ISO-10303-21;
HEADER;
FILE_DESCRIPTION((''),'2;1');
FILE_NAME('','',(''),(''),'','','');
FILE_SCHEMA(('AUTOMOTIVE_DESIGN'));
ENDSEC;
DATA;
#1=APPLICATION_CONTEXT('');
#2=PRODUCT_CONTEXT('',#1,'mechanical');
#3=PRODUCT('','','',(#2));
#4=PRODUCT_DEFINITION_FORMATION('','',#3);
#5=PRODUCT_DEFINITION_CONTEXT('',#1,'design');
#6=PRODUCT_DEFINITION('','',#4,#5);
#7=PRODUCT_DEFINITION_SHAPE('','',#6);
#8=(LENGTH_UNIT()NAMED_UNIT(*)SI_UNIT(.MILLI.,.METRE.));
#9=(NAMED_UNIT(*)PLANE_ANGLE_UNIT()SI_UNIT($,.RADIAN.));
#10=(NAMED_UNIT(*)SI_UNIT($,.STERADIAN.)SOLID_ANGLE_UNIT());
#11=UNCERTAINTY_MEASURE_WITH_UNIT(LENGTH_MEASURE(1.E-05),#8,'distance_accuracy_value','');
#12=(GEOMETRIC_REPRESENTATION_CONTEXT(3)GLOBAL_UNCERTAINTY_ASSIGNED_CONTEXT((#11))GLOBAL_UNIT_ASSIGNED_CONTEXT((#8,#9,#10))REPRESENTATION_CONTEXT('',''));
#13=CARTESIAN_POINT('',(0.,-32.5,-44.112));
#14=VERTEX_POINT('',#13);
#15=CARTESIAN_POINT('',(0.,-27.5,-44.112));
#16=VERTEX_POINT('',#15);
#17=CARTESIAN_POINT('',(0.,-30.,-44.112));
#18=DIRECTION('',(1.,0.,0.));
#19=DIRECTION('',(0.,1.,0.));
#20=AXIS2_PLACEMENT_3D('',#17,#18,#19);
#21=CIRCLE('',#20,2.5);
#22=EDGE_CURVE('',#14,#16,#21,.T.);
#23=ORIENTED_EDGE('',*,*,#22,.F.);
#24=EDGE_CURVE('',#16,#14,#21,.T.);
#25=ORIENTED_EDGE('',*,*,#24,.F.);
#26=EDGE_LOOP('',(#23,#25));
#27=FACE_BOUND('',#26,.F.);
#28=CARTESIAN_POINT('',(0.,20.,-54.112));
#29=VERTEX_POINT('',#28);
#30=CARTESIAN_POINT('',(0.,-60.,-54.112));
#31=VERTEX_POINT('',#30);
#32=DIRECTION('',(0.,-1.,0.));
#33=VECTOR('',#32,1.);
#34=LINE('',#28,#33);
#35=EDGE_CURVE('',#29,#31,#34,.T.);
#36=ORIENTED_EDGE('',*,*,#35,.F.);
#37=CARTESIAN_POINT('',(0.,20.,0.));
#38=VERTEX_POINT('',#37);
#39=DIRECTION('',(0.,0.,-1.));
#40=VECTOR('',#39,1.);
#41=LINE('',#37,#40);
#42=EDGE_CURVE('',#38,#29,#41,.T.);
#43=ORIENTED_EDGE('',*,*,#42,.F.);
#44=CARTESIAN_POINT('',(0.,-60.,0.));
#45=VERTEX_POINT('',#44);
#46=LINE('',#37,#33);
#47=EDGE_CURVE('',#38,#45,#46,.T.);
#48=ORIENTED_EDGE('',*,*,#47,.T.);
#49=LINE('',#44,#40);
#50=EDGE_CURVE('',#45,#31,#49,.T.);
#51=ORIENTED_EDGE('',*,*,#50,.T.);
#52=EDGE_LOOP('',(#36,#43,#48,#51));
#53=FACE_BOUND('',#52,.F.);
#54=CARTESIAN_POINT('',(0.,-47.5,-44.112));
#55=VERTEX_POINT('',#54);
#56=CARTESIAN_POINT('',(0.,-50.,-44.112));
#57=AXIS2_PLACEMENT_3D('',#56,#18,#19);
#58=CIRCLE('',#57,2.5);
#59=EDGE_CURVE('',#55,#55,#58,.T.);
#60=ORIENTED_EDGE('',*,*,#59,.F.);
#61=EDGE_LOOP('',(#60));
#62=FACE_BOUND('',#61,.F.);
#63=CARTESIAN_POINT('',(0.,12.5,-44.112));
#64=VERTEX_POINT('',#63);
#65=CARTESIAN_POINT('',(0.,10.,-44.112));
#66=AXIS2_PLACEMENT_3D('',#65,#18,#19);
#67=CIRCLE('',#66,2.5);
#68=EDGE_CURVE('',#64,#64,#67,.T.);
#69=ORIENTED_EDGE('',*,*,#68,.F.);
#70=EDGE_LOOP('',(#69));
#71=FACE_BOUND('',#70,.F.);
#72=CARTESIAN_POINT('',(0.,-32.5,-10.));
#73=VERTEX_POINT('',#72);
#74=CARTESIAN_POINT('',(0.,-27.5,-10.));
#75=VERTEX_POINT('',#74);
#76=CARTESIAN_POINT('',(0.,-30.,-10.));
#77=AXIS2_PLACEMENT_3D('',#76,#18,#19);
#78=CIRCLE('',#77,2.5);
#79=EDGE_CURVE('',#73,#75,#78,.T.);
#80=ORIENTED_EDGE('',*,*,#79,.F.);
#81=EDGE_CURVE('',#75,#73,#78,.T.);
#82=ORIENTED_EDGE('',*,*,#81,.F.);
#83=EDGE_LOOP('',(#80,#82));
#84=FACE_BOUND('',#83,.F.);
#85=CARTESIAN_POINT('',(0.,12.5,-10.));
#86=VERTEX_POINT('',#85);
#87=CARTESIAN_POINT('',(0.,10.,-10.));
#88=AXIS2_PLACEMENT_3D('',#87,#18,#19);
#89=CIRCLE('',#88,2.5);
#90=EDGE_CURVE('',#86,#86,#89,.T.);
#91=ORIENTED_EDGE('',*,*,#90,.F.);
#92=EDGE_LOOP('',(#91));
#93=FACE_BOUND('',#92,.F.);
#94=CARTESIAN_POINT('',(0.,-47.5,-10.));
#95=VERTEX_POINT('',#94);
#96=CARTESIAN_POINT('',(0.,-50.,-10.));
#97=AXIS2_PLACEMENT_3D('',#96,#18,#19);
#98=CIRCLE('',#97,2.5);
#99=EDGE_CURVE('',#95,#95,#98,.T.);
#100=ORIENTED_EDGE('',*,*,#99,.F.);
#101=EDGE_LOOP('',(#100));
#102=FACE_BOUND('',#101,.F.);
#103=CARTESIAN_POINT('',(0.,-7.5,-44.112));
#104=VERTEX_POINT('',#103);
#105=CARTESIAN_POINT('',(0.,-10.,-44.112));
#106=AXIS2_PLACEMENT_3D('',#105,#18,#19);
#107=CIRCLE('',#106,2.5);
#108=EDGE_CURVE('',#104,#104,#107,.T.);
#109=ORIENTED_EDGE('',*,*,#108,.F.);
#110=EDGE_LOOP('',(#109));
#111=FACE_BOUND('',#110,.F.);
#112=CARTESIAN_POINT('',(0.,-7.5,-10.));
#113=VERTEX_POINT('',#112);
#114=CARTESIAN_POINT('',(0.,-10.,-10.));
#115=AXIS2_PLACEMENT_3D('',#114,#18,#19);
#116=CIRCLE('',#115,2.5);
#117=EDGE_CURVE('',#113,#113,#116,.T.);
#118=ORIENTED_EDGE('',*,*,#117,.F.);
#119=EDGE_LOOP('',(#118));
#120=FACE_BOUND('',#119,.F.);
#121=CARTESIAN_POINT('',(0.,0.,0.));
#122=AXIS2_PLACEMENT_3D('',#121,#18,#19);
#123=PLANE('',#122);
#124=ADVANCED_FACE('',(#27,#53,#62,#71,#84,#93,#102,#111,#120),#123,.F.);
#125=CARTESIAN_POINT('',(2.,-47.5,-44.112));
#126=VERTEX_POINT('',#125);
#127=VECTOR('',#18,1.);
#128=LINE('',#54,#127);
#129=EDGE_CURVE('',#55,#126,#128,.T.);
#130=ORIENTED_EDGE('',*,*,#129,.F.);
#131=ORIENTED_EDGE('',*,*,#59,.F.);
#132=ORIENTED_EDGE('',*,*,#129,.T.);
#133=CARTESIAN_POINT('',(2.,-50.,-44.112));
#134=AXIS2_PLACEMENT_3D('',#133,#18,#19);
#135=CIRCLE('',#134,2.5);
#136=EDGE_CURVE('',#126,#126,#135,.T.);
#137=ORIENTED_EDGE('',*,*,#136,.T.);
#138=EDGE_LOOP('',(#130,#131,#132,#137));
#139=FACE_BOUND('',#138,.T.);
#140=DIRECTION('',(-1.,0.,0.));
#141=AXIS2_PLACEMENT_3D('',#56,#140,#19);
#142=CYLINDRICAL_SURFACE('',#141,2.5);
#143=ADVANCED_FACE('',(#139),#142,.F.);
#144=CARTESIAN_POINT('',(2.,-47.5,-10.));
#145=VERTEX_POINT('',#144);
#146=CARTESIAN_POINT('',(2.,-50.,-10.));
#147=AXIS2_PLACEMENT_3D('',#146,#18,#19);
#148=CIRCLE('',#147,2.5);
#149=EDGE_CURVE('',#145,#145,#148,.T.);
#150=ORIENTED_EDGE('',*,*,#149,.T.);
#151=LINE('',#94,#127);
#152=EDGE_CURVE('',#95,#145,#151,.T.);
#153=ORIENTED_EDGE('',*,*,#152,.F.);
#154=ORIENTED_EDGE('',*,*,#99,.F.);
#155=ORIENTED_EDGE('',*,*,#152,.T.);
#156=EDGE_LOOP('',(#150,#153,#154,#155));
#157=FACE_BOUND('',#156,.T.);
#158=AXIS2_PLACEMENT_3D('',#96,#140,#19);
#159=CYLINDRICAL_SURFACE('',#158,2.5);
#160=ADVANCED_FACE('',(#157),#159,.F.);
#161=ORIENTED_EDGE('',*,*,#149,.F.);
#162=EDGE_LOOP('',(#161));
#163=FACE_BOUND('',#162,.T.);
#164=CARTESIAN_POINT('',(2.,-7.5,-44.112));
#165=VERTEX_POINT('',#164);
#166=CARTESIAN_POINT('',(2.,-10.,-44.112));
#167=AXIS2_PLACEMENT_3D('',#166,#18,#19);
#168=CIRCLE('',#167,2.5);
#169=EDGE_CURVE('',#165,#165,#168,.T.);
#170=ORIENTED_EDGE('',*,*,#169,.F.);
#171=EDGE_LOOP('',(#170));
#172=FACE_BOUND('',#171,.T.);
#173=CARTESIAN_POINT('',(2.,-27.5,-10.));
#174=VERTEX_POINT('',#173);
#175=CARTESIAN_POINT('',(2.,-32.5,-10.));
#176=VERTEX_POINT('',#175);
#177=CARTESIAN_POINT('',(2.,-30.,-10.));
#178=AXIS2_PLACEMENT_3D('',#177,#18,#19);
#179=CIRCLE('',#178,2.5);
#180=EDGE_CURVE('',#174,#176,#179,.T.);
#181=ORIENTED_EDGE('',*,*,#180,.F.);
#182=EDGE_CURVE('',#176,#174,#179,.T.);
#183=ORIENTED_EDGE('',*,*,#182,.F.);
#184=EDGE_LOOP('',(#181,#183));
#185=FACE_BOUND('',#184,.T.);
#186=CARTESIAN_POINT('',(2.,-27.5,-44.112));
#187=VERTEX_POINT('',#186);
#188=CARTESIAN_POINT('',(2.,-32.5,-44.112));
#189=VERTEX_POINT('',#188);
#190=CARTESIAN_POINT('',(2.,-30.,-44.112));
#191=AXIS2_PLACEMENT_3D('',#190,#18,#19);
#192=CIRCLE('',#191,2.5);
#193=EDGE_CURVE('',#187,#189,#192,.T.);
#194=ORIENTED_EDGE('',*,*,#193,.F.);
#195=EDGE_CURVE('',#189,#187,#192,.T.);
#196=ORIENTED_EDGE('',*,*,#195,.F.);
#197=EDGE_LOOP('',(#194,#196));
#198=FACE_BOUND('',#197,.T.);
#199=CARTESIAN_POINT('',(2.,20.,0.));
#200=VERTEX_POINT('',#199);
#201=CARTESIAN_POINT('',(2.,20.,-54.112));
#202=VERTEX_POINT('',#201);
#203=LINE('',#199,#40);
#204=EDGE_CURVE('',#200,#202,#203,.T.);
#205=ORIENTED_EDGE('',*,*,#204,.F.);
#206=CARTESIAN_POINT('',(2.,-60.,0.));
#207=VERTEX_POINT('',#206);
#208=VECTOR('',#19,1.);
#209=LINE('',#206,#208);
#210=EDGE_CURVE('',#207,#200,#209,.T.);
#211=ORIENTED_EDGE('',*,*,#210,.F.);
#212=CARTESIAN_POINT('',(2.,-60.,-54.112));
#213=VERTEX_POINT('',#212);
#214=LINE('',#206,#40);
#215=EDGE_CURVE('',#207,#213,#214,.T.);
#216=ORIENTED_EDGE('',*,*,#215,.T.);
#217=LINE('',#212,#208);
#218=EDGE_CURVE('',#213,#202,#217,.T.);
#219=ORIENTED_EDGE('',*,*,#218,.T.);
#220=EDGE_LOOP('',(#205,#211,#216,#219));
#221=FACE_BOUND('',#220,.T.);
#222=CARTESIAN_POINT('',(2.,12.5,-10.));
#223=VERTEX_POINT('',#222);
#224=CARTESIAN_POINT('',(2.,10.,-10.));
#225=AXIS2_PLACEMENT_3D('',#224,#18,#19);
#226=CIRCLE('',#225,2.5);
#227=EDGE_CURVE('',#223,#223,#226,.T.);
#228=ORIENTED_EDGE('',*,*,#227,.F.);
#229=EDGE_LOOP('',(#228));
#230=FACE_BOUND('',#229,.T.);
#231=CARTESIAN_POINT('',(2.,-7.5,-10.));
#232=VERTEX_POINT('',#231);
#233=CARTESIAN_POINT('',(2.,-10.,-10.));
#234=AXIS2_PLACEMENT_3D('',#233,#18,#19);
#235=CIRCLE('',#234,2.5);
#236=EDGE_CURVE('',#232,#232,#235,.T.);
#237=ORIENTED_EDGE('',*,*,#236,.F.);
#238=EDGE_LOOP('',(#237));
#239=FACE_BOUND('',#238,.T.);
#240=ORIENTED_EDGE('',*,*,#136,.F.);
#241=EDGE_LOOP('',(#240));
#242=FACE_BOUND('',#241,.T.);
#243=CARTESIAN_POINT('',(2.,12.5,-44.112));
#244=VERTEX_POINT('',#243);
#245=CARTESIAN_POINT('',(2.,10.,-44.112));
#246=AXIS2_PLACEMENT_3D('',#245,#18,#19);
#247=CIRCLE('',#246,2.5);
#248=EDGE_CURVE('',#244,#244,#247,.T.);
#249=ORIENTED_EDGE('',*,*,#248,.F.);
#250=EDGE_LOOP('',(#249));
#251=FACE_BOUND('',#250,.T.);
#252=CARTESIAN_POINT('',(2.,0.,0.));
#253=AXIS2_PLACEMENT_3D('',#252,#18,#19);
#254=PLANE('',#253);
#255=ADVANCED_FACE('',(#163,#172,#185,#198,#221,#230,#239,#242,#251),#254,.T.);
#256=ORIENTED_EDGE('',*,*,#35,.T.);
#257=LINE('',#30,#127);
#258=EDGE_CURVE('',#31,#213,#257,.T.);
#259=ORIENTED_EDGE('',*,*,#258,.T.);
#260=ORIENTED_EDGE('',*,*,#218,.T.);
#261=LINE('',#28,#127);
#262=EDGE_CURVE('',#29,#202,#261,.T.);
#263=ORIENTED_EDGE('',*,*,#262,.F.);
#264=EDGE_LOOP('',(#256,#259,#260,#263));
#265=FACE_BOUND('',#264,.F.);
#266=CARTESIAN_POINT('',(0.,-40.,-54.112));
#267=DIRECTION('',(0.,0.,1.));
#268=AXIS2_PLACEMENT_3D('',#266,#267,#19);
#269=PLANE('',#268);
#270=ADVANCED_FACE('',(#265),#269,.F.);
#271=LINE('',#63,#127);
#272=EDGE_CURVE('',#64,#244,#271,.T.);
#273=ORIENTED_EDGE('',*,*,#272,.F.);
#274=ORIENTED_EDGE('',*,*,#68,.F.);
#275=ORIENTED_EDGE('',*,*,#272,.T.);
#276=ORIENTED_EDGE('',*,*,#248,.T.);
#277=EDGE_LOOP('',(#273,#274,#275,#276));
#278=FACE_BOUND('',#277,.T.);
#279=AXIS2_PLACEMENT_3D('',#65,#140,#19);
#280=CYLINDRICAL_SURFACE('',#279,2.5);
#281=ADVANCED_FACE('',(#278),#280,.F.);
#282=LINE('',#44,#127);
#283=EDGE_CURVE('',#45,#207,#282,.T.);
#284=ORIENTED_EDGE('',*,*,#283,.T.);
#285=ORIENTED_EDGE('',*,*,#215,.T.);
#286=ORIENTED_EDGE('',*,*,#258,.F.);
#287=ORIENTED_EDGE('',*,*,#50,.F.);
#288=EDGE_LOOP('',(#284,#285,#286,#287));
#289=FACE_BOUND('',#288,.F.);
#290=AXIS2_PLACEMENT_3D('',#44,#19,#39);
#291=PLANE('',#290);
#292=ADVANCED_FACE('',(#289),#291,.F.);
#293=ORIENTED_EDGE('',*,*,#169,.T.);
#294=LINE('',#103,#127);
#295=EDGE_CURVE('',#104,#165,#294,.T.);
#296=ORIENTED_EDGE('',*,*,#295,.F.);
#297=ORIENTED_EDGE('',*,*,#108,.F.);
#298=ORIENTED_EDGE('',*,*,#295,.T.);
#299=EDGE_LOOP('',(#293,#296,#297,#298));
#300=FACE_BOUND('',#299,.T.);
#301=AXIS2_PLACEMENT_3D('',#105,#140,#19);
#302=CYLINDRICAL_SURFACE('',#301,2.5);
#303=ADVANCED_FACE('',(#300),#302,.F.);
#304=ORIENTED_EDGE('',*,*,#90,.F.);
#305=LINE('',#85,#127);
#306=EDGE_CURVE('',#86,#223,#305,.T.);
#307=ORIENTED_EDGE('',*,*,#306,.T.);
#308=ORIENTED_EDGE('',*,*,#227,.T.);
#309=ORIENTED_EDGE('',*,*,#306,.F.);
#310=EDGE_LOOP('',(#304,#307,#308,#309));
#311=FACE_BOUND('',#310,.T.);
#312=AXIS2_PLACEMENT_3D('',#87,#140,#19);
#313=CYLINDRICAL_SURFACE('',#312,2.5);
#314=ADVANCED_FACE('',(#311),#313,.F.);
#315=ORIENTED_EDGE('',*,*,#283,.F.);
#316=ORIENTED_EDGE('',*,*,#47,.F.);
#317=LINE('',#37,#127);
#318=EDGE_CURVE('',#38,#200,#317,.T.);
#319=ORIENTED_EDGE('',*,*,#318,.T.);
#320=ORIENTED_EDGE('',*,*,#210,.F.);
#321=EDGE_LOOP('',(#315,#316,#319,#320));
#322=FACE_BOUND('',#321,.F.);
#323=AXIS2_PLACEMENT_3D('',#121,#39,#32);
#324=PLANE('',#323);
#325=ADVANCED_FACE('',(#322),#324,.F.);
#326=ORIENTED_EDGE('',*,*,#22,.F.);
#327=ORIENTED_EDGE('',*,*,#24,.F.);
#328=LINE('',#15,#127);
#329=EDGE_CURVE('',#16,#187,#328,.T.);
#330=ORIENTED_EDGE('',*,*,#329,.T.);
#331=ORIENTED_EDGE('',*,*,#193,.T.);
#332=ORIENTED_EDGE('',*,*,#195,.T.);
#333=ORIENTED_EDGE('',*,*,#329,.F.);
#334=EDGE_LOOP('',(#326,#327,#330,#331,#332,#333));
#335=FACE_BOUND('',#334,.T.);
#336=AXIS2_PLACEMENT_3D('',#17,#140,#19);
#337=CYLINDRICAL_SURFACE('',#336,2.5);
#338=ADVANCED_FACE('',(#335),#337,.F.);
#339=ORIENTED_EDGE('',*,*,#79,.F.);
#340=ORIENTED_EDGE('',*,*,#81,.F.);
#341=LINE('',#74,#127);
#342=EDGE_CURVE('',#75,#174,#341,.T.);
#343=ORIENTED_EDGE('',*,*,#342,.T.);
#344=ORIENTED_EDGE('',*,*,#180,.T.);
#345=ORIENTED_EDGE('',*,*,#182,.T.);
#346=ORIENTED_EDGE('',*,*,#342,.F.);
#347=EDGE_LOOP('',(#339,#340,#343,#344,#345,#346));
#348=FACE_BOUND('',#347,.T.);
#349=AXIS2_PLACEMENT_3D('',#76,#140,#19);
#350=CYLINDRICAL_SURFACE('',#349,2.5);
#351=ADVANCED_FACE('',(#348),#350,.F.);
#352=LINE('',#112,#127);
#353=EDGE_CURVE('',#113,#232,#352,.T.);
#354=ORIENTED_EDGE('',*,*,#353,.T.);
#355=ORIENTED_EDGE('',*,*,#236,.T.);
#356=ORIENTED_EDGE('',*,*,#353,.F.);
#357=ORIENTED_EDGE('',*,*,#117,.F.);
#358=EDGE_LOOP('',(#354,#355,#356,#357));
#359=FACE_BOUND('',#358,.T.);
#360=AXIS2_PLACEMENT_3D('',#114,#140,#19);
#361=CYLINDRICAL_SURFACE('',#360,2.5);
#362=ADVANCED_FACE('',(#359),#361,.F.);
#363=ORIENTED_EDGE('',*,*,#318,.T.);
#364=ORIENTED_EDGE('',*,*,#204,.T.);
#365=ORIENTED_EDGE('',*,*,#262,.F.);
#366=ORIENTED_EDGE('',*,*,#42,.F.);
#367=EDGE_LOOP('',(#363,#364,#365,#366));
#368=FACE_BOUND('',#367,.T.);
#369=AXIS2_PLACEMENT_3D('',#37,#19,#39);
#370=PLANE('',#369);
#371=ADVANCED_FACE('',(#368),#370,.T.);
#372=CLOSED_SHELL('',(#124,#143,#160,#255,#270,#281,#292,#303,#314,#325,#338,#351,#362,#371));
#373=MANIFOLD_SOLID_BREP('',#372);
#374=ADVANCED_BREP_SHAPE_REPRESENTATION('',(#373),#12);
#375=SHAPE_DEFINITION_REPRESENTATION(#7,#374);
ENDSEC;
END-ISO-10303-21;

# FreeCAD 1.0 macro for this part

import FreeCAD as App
import Part
import Sketcher
Q = App.Units.Quantity


def add_polygon(sketch, points):
    """Adds a closed chain of lines whose ends are joined by coincident constraints."""
    first, n = sketch.GeometryCount, len(points)
    for a, b in zip(points, points[1:] + points[:1]):
        sketch.addGeometry(Part.LineSegment(App.Vector(*a, 0), App.Vector(*b, 0)), False)
    for i in range(n):
        sketch.addConstraint(Sketcher.Constraint("Coincident", first + i, 2, first + (i + 1) % n, 1))

doc = App.newDocument("Part")
body = doc.addObject("PartDesign::Body", "Body")

sketch1 = body.newObject("Sketcher::SketchObject", "Sketch")
sketch1.AttachmentSupport = (doc.getObject("YZ_Plane"), [""])
sketch1.MapMode = "FlatFace"
add_polygon(sketch1, [(20, -54.1), (20, 0), (-60, 0), (-60, -54.1)])
sketch1.addGeometry(Part.Circle(App.Vector(-30, -44.1, 0), App.Vector(0, 0, 1), 2.5), False)
sketch1.addGeometry(Part.Circle(App.Vector(-10, -44.1, 0), App.Vector(0, 0, 1), 2.5), False)
sketch1.addGeometry(Part.Circle(App.Vector(-30, -10, 0), App.Vector(0, 0, 1), 2.5), False)
sketch1.addGeometry(Part.Circle(App.Vector(-10, -10, 0), App.Vector(0, 0, 1), 2.5), False)
sketch1.addGeometry(Part.Circle(App.Vector(10, -10, 0), App.Vector(0, 0, 1), 2.5), False)
sketch1.addGeometry(Part.Circle(App.Vector(10, -44.1, 0), App.Vector(0, 0, 1), 2.5), False)
sketch1.addGeometry(Part.Circle(App.Vector(-50, -44.1, 0), App.Vector(0, 0, 1), 2.5), False)
sketch1.addGeometry(Part.Circle(App.Vector(-50, -10, 0), App.Vector(0, 0, 1), 2.5), False)
sketch1.addConstraint([
    Sketcher.Constraint("Vertical", 0),
    Sketcher.Constraint("Horizontal", 1),
    Sketcher.Constraint("Vertical", 2),
    Sketcher.Constraint("Horizontal", 3),
    Sketcher.Constraint("Equal", 4, 5),
    Sketcher.Constraint("Equal", 5, 6),
    Sketcher.Constraint("Equal", 6, 7),
    Sketcher.Constraint("Equal", 7, 8),
    Sketcher.Constraint("Equal", 8, 9),
    Sketcher.Constraint("Equal", 9, 10),
    Sketcher.Constraint("Equal", 10, 11),
    Sketcher.Constraint("Symmetric", 7, 3, 8, 3, -2),
    Sketcher.Constraint("Symmetric", 5, 3, 9, 3, -2),
    Sketcher.Constraint("PointOnObject", 0, 2, -1),
    Sketcher.Constraint("Horizontal", 4, 3, 5, 3),
    Sketcher.Constraint("Horizontal", 6, 3, 7, 3),
    Sketcher.Constraint("Horizontal", 9, 3, 10, 3),
    Sketcher.Constraint("Horizontal", 8, 3, 11, 3),
    Sketcher.Constraint("Vertical", 4, 3, 6, 3),
    Sketcher.Constraint("Vertical", 5, 3, 7, 3),
    Sketcher.Constraint("Vertical", 10, 3, 11, 3),
    Sketcher.Constraint("Diameter", 4, Q("5 mm")),
    Sketcher.Constraint("DistanceX", 5, 3, -1, 1, Q("10 mm")),
    Sketcher.Constraint("DistanceY", 6, 3, -1, 1, Q("10 mm")),
    Sketcher.Constraint("DistanceX", -1, 1, 0, 2, Q("20 mm")),
    Sketcher.Constraint("DistanceX", 4, 3, 5, 3, Q("20 mm")),
    Sketcher.Constraint("DistanceX", 10, 3, 4, 3, Q("20 mm")),
    Sketcher.Constraint("DistanceX", 1, 2, 11, 3, Q("10 mm")),
    Sketcher.Constraint("DistanceY", 2, 2, 10, 3, Q("10 mm")),
    Sketcher.Constraint("DistanceY", 0, 1, 0, 2, Q("54.112 mm")),
])
pad1 = body.newObject("PartDesign::Pad", "Pad")
pad1.Profile = sketch1
pad1.Length = 2

doc.recompute()
